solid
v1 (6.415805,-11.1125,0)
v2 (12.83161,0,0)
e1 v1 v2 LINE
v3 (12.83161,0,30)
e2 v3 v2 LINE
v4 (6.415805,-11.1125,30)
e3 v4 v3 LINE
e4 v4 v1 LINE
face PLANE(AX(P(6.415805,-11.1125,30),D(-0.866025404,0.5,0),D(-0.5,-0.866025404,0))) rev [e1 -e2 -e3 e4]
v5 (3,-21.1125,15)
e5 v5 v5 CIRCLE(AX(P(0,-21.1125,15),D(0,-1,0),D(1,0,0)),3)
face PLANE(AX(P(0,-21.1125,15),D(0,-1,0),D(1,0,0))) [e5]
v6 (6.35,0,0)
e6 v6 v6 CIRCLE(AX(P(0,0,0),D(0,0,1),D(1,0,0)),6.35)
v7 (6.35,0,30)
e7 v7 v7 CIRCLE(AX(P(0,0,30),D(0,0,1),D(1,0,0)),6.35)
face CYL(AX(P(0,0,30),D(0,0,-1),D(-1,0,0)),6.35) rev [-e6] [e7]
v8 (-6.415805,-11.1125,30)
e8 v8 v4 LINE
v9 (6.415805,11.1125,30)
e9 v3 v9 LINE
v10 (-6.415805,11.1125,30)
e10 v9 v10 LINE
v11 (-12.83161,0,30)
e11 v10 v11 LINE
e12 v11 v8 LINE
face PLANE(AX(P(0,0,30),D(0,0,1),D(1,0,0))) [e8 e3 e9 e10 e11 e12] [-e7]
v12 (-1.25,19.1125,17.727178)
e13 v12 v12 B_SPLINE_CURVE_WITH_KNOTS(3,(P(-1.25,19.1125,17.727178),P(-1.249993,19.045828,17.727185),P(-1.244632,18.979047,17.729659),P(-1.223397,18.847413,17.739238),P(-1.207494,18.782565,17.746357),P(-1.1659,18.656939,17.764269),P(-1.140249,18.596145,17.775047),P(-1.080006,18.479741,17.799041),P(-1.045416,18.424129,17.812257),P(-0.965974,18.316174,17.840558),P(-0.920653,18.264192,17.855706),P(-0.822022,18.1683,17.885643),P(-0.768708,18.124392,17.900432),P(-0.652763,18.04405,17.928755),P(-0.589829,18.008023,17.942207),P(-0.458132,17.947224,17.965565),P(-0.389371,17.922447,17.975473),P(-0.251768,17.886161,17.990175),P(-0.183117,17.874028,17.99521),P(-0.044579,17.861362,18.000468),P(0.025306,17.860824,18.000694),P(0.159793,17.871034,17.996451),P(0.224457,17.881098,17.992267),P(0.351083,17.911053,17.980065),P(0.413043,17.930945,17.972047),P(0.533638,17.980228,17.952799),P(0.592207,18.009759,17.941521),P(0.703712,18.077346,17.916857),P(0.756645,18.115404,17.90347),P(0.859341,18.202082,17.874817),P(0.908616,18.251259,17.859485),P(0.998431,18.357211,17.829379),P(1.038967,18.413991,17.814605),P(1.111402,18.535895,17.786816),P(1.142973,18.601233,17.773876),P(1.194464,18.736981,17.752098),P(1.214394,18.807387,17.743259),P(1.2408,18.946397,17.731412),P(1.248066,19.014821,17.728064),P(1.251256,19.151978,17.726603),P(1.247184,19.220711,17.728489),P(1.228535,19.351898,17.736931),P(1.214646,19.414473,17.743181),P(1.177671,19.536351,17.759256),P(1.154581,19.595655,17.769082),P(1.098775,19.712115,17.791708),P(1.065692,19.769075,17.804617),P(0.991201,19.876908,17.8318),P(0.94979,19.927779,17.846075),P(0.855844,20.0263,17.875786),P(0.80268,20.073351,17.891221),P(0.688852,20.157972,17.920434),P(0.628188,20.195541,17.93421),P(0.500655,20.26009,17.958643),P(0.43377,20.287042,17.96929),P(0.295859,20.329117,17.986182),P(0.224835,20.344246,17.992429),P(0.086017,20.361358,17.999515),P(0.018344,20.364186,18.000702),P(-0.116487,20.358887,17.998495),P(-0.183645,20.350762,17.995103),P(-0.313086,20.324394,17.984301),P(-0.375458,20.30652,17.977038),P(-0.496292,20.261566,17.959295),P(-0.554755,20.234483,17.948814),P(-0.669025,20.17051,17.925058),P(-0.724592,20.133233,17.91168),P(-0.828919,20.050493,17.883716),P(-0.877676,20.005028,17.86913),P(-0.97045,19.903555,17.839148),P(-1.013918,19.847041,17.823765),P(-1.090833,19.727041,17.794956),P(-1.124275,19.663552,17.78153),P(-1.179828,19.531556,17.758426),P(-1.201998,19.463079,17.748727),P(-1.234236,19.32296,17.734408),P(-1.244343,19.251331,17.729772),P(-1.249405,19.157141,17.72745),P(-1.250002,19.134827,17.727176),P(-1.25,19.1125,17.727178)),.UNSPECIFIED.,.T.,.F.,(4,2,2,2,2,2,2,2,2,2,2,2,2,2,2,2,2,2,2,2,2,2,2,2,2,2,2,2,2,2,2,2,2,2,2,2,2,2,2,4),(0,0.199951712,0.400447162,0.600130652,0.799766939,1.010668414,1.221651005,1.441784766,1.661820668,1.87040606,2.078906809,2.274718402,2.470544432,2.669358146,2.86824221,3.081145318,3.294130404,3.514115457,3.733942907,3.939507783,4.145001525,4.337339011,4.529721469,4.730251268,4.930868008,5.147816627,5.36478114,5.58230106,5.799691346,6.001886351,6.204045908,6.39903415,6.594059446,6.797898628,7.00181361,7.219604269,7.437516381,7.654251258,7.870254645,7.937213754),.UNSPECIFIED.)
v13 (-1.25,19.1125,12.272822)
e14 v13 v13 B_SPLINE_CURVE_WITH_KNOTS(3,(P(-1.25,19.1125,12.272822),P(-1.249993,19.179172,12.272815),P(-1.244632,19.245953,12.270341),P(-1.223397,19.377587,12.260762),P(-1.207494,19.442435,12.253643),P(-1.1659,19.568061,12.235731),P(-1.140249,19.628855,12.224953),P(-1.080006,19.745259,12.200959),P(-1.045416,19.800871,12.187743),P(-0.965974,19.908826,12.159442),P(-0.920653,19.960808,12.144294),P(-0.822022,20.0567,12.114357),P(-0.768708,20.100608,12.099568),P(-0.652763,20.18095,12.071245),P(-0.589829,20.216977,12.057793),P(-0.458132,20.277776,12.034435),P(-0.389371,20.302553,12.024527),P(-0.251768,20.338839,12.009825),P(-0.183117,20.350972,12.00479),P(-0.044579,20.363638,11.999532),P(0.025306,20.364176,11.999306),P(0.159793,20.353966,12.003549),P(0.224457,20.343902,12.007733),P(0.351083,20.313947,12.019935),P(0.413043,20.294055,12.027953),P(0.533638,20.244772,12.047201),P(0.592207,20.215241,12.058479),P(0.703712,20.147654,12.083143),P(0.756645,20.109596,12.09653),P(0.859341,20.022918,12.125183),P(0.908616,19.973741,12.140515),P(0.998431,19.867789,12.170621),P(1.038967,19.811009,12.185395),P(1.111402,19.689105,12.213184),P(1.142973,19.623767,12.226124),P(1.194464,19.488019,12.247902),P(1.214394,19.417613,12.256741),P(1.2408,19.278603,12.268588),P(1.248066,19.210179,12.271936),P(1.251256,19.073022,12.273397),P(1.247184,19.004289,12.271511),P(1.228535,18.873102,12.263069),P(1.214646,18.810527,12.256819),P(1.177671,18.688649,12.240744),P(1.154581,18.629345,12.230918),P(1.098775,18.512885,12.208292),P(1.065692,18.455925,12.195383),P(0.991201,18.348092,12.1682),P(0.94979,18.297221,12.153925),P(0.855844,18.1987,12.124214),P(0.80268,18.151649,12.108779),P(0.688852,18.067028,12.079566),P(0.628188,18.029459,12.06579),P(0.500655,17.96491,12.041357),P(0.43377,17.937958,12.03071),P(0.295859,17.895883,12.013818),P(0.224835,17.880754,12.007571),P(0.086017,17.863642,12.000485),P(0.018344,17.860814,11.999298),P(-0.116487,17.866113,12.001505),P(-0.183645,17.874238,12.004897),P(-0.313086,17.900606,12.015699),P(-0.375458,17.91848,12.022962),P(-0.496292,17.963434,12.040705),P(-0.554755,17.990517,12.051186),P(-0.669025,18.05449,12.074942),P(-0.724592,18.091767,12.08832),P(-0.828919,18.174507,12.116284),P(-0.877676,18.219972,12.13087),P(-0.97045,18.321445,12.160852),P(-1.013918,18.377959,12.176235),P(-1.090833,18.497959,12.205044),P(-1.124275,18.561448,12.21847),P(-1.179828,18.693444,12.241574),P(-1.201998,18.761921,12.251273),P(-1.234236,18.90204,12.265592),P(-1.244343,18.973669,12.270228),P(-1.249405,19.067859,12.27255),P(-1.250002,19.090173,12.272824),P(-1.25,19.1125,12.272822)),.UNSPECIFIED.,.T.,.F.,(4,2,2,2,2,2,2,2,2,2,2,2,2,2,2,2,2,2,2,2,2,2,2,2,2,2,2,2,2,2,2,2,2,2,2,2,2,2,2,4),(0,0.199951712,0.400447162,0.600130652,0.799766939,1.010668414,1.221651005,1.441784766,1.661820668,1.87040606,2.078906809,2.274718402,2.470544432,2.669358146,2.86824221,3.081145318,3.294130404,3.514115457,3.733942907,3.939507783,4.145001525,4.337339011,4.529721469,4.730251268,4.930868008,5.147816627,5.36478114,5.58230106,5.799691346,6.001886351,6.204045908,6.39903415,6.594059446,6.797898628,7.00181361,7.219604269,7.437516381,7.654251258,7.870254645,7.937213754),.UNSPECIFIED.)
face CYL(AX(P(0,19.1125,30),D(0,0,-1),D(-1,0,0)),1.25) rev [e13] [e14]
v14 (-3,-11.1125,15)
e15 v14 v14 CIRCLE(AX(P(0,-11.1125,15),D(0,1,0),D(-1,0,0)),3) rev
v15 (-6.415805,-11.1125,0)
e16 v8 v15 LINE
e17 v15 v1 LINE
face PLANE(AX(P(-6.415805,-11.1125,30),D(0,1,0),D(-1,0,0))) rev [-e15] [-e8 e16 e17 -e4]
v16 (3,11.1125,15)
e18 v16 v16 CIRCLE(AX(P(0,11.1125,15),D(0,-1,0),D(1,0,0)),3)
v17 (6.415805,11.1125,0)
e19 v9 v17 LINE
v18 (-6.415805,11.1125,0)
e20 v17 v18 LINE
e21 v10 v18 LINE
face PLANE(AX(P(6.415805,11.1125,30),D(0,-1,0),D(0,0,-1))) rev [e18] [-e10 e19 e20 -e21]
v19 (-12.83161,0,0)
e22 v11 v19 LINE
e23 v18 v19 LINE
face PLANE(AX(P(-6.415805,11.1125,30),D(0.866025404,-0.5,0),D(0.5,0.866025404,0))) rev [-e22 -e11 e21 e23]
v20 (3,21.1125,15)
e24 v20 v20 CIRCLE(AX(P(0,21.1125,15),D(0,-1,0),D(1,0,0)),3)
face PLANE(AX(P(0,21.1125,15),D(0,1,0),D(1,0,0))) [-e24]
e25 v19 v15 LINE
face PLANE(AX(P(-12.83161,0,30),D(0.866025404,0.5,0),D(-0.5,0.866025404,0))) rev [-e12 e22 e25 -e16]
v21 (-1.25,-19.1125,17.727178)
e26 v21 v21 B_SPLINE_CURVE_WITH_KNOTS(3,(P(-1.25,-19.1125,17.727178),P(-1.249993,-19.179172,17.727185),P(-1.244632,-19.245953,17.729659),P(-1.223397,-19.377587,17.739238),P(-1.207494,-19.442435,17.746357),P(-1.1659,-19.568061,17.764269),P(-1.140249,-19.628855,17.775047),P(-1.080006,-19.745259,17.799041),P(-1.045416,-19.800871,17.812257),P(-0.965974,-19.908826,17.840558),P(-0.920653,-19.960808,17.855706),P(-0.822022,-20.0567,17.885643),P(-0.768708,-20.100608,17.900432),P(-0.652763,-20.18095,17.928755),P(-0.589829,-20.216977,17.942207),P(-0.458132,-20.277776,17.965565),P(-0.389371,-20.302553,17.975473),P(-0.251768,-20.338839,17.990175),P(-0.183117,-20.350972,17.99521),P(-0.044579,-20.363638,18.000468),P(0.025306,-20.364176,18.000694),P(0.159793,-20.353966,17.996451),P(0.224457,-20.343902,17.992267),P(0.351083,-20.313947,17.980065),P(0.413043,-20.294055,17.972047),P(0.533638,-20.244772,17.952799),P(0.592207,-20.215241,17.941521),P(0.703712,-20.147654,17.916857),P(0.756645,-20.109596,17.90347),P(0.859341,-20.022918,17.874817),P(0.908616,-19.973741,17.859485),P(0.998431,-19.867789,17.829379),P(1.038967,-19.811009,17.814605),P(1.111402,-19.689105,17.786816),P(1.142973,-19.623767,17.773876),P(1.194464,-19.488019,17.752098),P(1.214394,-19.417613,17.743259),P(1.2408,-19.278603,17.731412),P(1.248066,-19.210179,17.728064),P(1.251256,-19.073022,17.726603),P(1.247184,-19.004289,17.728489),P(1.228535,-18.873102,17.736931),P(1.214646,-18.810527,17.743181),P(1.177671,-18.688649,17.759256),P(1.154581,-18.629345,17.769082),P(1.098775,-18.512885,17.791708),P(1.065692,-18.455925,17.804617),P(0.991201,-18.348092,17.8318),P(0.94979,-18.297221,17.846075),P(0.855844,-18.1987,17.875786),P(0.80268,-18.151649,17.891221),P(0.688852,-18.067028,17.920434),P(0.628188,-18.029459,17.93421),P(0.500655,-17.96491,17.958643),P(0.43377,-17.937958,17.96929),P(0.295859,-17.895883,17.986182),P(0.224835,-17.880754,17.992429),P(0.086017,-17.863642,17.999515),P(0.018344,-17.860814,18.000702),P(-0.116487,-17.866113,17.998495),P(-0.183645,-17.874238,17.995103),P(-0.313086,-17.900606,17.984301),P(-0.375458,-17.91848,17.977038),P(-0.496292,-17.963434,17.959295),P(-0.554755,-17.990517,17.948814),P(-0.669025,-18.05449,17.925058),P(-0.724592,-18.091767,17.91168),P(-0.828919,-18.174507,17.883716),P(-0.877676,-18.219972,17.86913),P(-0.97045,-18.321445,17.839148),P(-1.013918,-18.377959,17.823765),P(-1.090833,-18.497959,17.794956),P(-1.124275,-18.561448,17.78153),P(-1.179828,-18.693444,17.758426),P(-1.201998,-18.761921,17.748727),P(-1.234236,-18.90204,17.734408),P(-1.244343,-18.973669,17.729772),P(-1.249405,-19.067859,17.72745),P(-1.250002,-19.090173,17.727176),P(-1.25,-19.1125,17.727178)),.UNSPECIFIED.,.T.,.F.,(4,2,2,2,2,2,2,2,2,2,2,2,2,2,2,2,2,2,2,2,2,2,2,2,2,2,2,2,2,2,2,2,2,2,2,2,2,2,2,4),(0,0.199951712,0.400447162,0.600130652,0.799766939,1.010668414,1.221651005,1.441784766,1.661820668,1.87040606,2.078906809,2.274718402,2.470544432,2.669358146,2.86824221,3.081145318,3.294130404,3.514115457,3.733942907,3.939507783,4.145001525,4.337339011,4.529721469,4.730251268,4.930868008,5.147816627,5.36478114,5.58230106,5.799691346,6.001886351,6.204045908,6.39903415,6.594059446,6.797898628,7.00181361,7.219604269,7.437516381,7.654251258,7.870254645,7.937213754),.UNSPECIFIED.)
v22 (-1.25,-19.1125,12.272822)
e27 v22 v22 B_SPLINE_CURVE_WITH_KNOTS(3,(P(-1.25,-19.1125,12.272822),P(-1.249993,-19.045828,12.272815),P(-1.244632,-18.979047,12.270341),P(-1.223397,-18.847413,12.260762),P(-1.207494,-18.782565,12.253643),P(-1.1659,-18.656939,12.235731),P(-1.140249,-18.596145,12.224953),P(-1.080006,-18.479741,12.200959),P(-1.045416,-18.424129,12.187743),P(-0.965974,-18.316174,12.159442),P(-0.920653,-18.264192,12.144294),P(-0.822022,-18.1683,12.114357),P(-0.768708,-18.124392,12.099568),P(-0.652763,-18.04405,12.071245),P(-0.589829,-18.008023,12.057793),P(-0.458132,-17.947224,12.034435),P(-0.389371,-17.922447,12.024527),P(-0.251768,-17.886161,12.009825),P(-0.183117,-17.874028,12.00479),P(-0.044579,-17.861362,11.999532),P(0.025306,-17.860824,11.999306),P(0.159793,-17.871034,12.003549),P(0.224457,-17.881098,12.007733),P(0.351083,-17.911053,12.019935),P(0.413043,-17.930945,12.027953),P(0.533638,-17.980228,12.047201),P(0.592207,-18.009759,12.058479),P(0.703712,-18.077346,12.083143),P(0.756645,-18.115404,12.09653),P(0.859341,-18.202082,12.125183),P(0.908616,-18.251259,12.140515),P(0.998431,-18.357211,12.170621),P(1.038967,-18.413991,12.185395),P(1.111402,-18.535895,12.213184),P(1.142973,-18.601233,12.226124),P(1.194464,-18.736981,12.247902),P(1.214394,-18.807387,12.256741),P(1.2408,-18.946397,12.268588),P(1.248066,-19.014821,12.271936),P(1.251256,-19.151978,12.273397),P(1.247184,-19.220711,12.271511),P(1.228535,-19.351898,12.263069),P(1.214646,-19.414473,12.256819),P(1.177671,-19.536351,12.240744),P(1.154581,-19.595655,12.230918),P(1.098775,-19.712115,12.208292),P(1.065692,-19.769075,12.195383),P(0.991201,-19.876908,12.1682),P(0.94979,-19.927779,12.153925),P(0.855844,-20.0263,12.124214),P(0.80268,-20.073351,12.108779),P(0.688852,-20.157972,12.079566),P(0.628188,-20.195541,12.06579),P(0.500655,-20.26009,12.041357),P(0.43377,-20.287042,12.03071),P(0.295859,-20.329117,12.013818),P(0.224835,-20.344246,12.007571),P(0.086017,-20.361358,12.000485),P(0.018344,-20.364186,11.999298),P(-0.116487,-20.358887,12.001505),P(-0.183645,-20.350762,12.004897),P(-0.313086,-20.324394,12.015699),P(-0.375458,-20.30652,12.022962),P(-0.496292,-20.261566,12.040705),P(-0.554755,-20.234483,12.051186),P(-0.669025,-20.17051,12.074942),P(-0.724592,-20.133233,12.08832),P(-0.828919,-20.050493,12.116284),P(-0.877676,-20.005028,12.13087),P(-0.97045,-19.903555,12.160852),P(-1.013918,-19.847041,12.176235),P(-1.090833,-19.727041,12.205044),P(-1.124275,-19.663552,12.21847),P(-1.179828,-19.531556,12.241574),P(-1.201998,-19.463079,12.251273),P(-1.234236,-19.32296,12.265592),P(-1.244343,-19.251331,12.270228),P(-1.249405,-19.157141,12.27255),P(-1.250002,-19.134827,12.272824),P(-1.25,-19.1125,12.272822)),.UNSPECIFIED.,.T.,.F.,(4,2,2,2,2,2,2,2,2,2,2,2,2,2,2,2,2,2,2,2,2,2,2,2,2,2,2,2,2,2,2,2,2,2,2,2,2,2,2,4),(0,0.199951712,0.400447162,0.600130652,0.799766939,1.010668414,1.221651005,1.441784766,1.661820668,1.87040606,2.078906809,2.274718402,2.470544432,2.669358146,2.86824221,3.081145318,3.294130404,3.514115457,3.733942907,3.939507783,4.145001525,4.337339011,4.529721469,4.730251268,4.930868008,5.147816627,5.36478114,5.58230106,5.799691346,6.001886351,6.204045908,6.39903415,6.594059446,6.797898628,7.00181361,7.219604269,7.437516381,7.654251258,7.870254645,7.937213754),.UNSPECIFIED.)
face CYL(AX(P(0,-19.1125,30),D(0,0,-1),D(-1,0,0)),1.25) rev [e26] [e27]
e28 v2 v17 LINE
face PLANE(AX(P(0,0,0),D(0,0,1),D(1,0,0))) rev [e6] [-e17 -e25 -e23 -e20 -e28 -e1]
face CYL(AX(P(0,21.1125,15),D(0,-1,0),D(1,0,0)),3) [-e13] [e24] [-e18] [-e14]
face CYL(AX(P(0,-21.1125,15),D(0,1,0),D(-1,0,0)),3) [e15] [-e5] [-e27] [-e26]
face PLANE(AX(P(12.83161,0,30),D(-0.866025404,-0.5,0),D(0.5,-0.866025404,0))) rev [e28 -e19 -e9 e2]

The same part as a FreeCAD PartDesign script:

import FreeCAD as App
import Part
import Sketcher

V = App.Vector
Q = App.Units.Quantity

doc = App.newDocument("Part")
body = doc.addObject("PartDesign::Body", "Body")

sketch1 = body.newObject("Sketcher::SketchObject", "Sketch")
sketch1.AttachmentSupport = (doc.getObject("XY_Plane"), [""])
sketch1.MapMode = "FlatFace"
sketch1.addGeometry([
    Part.LineSegment(V(6, -11, 0), V(13, 0, 0)),
    Part.LineSegment(V(13, 0, 0), V(6, 11, 0)),
    Part.LineSegment(V(6, 11, 0), V(-6, 11, 0)),
    Part.LineSegment(V(-6, 11, 0), V(-13, 0, 0)),
    Part.LineSegment(V(-13, 0, 0), V(-6, -11, 0)),
    Part.LineSegment(V(-6, -11, 0), V(6, -11, 0)),
    Part.Circle(V(0, 0, 0), V(0, 0, 1), 6),
], False)
sketch1.addConstraint([
    Sketcher.Constraint("Coincident", 0, 2, 1, 1),
    Sketcher.Constraint("Coincident", 1, 2, 2, 1),
    Sketcher.Constraint("Coincident", 2, 2, 3, 1),
    Sketcher.Constraint("Coincident", 3, 2, 4, 1),
    Sketcher.Constraint("Coincident", 4, 2, 5, 1),
    Sketcher.Constraint("Coincident", 5, 2, 0, 1),
    Sketcher.Constraint("Horizontal", 2),
    Sketcher.Constraint("Horizontal", 5),
    Sketcher.Constraint("Coincident", 6, 3, -1, 1),
    Sketcher.Constraint("Symmetric", 0, 2, 3, 2, -1, 1),
    Sketcher.Constraint("Symmetric", 1, 2, 4, 2, -1, 1),
    Sketcher.Constraint("PointOnObject", 0, 2, -1),
    Sketcher.Constraint("Parallel", 0, 3),
    Sketcher.Constraint("Vertical", 2, 2, 4, 2),
    Sketcher.Constraint("Diameter", 6, 12.7),
    Sketcher.Constraint("Angle", 0, Q("60 deg")),
    Sketcher.Constraint("DistanceY", 4, 2, 2, 2, 22.225),
    Sketcher.Constraint("DistanceX", 2, 2, 2, 1, 12.83161),
])
pad1 = body.newObject("PartDesign::Pad", "Pad")
pad1.Profile = sketch1
pad1.Length = 30

sketch2 = body.newObject("Sketcher::SketchObject", "Sketch001")
sketch2.AttachmentSupport = (doc.getObject("XZ_Plane"), [""])
sketch2.MapMode = "FlatFace"
sketch2.AttachmentOffset = App.Placement(V(0, 0, 11.1125), App.Rotation())
sketch2.addGeometry(Part.Circle(V(0, 15, 0), V(0, 0, 1), 3), False)
sketch2.addConstraint([
    Sketcher.Constraint("PointOnObject", 0, 3, -2),
    Sketcher.Constraint("Diameter", 0, 6.0),
    Sketcher.Constraint("DistanceY", -1, 1, 0, 3, 15.0),
])
pad2 = body.newObject("PartDesign::Pad", "Pad001")
pad2.Profile = sketch2
pad2.Length = 10

sketch3 = body.newObject("Sketcher::SketchObject", "Sketch002")
sketch3.AttachmentSupport = (doc.getObject("XY_Plane"), [""])
sketch3.MapMode = "FlatFace"
sketch3.addGeometry(Part.Circle(V(0, -19.1, 0), V(0, 0, 1), 1.2), False)
sketch3.addConstraint([
    Sketcher.Constraint("PointOnObject", 0, 3, -2),
    Sketcher.Constraint("Diameter", 0, 2.5),
    Sketcher.Constraint("DistanceY", 0, 3, -1, 1, 19.1125),
])
pocket1 = body.newObject("PartDesign::Pocket", "Pocket")
pocket1.Profile = sketch3
pocket1.Type = "ThroughAll"
pocket1.Reversed = True
doc.recompute()

mirrored = body.newObject("PartDesign::Mirrored", "Mirrored")
mirrored.Originals = [pad2, pocket1]
mirrored.MirrorPlane = (doc.getObject("XZ_Plane"), [""])
body.Tip = mirrored

doc.recompute()
